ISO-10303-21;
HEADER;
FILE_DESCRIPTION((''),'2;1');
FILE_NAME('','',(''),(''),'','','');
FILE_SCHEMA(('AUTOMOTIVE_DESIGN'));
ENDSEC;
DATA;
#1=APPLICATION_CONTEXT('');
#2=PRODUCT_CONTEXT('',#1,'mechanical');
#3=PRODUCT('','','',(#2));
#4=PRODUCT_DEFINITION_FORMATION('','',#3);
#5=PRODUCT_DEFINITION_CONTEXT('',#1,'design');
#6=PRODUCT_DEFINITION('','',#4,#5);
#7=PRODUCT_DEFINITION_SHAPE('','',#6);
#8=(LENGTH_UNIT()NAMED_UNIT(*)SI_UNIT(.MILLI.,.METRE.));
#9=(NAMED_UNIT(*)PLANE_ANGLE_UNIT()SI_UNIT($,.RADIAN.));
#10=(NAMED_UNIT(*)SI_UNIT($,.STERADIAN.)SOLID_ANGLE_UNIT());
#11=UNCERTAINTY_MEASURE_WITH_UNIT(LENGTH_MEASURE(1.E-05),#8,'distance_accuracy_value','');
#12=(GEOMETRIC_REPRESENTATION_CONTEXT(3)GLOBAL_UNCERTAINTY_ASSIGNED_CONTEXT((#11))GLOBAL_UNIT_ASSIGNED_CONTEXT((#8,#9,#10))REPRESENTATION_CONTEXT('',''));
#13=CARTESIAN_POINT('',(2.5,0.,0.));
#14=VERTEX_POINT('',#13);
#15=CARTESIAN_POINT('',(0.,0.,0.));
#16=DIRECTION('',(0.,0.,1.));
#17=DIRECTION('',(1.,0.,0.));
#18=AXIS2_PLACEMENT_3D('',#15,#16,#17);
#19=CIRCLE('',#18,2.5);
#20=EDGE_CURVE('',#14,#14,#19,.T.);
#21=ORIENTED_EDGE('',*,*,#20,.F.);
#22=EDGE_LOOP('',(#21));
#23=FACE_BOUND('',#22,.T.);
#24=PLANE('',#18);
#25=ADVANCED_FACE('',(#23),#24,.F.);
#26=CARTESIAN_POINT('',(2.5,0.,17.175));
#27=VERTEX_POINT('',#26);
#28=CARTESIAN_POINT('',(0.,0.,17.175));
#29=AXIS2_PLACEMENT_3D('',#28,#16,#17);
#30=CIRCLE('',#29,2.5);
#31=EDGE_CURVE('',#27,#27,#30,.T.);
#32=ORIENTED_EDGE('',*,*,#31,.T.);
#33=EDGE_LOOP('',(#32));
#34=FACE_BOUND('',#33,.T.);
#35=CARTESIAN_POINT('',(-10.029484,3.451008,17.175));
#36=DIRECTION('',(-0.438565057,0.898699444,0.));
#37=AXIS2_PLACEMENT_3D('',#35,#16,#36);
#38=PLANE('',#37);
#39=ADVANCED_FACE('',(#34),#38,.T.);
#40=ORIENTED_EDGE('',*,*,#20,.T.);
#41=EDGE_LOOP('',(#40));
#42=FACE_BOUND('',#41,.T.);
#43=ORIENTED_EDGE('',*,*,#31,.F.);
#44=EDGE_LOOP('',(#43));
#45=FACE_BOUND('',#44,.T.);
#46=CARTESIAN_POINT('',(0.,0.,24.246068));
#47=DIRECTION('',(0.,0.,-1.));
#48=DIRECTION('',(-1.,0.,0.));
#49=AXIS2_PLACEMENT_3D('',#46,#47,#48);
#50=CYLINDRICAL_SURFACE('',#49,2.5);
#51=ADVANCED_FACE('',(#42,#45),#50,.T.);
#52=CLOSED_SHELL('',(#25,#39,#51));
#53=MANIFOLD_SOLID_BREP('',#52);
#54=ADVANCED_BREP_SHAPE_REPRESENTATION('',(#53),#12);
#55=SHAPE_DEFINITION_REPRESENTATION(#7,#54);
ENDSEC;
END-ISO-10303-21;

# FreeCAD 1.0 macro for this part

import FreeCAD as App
import Part
import Sketcher

V = App.Vector

doc = App.newDocument("Part")
body = doc.addObject("PartDesign::Body", "Body")

sketch1 = body.newObject("Sketcher::SketchObject", "Sketch")
sketch1.AttachmentSupport = (doc.getObject("XY_Plane"), [""])
sketch1.MapMode = "FlatFace"
sketch1.addGeometry(Part.Circle(V(0, 0, 0), V(0, 0, 1), 2.5), False)
sketch1.addConstraint([
    Sketcher.Constraint("Coincident", 0, 3, -1, 1),
    Sketcher.Constraint("Diameter", 0, 5.0),
])
pad1 = body.newObject("PartDesign::Pad", "Pad")
pad1.Profile = sketch1
pad1.Length = 17.175

doc.recompute()
